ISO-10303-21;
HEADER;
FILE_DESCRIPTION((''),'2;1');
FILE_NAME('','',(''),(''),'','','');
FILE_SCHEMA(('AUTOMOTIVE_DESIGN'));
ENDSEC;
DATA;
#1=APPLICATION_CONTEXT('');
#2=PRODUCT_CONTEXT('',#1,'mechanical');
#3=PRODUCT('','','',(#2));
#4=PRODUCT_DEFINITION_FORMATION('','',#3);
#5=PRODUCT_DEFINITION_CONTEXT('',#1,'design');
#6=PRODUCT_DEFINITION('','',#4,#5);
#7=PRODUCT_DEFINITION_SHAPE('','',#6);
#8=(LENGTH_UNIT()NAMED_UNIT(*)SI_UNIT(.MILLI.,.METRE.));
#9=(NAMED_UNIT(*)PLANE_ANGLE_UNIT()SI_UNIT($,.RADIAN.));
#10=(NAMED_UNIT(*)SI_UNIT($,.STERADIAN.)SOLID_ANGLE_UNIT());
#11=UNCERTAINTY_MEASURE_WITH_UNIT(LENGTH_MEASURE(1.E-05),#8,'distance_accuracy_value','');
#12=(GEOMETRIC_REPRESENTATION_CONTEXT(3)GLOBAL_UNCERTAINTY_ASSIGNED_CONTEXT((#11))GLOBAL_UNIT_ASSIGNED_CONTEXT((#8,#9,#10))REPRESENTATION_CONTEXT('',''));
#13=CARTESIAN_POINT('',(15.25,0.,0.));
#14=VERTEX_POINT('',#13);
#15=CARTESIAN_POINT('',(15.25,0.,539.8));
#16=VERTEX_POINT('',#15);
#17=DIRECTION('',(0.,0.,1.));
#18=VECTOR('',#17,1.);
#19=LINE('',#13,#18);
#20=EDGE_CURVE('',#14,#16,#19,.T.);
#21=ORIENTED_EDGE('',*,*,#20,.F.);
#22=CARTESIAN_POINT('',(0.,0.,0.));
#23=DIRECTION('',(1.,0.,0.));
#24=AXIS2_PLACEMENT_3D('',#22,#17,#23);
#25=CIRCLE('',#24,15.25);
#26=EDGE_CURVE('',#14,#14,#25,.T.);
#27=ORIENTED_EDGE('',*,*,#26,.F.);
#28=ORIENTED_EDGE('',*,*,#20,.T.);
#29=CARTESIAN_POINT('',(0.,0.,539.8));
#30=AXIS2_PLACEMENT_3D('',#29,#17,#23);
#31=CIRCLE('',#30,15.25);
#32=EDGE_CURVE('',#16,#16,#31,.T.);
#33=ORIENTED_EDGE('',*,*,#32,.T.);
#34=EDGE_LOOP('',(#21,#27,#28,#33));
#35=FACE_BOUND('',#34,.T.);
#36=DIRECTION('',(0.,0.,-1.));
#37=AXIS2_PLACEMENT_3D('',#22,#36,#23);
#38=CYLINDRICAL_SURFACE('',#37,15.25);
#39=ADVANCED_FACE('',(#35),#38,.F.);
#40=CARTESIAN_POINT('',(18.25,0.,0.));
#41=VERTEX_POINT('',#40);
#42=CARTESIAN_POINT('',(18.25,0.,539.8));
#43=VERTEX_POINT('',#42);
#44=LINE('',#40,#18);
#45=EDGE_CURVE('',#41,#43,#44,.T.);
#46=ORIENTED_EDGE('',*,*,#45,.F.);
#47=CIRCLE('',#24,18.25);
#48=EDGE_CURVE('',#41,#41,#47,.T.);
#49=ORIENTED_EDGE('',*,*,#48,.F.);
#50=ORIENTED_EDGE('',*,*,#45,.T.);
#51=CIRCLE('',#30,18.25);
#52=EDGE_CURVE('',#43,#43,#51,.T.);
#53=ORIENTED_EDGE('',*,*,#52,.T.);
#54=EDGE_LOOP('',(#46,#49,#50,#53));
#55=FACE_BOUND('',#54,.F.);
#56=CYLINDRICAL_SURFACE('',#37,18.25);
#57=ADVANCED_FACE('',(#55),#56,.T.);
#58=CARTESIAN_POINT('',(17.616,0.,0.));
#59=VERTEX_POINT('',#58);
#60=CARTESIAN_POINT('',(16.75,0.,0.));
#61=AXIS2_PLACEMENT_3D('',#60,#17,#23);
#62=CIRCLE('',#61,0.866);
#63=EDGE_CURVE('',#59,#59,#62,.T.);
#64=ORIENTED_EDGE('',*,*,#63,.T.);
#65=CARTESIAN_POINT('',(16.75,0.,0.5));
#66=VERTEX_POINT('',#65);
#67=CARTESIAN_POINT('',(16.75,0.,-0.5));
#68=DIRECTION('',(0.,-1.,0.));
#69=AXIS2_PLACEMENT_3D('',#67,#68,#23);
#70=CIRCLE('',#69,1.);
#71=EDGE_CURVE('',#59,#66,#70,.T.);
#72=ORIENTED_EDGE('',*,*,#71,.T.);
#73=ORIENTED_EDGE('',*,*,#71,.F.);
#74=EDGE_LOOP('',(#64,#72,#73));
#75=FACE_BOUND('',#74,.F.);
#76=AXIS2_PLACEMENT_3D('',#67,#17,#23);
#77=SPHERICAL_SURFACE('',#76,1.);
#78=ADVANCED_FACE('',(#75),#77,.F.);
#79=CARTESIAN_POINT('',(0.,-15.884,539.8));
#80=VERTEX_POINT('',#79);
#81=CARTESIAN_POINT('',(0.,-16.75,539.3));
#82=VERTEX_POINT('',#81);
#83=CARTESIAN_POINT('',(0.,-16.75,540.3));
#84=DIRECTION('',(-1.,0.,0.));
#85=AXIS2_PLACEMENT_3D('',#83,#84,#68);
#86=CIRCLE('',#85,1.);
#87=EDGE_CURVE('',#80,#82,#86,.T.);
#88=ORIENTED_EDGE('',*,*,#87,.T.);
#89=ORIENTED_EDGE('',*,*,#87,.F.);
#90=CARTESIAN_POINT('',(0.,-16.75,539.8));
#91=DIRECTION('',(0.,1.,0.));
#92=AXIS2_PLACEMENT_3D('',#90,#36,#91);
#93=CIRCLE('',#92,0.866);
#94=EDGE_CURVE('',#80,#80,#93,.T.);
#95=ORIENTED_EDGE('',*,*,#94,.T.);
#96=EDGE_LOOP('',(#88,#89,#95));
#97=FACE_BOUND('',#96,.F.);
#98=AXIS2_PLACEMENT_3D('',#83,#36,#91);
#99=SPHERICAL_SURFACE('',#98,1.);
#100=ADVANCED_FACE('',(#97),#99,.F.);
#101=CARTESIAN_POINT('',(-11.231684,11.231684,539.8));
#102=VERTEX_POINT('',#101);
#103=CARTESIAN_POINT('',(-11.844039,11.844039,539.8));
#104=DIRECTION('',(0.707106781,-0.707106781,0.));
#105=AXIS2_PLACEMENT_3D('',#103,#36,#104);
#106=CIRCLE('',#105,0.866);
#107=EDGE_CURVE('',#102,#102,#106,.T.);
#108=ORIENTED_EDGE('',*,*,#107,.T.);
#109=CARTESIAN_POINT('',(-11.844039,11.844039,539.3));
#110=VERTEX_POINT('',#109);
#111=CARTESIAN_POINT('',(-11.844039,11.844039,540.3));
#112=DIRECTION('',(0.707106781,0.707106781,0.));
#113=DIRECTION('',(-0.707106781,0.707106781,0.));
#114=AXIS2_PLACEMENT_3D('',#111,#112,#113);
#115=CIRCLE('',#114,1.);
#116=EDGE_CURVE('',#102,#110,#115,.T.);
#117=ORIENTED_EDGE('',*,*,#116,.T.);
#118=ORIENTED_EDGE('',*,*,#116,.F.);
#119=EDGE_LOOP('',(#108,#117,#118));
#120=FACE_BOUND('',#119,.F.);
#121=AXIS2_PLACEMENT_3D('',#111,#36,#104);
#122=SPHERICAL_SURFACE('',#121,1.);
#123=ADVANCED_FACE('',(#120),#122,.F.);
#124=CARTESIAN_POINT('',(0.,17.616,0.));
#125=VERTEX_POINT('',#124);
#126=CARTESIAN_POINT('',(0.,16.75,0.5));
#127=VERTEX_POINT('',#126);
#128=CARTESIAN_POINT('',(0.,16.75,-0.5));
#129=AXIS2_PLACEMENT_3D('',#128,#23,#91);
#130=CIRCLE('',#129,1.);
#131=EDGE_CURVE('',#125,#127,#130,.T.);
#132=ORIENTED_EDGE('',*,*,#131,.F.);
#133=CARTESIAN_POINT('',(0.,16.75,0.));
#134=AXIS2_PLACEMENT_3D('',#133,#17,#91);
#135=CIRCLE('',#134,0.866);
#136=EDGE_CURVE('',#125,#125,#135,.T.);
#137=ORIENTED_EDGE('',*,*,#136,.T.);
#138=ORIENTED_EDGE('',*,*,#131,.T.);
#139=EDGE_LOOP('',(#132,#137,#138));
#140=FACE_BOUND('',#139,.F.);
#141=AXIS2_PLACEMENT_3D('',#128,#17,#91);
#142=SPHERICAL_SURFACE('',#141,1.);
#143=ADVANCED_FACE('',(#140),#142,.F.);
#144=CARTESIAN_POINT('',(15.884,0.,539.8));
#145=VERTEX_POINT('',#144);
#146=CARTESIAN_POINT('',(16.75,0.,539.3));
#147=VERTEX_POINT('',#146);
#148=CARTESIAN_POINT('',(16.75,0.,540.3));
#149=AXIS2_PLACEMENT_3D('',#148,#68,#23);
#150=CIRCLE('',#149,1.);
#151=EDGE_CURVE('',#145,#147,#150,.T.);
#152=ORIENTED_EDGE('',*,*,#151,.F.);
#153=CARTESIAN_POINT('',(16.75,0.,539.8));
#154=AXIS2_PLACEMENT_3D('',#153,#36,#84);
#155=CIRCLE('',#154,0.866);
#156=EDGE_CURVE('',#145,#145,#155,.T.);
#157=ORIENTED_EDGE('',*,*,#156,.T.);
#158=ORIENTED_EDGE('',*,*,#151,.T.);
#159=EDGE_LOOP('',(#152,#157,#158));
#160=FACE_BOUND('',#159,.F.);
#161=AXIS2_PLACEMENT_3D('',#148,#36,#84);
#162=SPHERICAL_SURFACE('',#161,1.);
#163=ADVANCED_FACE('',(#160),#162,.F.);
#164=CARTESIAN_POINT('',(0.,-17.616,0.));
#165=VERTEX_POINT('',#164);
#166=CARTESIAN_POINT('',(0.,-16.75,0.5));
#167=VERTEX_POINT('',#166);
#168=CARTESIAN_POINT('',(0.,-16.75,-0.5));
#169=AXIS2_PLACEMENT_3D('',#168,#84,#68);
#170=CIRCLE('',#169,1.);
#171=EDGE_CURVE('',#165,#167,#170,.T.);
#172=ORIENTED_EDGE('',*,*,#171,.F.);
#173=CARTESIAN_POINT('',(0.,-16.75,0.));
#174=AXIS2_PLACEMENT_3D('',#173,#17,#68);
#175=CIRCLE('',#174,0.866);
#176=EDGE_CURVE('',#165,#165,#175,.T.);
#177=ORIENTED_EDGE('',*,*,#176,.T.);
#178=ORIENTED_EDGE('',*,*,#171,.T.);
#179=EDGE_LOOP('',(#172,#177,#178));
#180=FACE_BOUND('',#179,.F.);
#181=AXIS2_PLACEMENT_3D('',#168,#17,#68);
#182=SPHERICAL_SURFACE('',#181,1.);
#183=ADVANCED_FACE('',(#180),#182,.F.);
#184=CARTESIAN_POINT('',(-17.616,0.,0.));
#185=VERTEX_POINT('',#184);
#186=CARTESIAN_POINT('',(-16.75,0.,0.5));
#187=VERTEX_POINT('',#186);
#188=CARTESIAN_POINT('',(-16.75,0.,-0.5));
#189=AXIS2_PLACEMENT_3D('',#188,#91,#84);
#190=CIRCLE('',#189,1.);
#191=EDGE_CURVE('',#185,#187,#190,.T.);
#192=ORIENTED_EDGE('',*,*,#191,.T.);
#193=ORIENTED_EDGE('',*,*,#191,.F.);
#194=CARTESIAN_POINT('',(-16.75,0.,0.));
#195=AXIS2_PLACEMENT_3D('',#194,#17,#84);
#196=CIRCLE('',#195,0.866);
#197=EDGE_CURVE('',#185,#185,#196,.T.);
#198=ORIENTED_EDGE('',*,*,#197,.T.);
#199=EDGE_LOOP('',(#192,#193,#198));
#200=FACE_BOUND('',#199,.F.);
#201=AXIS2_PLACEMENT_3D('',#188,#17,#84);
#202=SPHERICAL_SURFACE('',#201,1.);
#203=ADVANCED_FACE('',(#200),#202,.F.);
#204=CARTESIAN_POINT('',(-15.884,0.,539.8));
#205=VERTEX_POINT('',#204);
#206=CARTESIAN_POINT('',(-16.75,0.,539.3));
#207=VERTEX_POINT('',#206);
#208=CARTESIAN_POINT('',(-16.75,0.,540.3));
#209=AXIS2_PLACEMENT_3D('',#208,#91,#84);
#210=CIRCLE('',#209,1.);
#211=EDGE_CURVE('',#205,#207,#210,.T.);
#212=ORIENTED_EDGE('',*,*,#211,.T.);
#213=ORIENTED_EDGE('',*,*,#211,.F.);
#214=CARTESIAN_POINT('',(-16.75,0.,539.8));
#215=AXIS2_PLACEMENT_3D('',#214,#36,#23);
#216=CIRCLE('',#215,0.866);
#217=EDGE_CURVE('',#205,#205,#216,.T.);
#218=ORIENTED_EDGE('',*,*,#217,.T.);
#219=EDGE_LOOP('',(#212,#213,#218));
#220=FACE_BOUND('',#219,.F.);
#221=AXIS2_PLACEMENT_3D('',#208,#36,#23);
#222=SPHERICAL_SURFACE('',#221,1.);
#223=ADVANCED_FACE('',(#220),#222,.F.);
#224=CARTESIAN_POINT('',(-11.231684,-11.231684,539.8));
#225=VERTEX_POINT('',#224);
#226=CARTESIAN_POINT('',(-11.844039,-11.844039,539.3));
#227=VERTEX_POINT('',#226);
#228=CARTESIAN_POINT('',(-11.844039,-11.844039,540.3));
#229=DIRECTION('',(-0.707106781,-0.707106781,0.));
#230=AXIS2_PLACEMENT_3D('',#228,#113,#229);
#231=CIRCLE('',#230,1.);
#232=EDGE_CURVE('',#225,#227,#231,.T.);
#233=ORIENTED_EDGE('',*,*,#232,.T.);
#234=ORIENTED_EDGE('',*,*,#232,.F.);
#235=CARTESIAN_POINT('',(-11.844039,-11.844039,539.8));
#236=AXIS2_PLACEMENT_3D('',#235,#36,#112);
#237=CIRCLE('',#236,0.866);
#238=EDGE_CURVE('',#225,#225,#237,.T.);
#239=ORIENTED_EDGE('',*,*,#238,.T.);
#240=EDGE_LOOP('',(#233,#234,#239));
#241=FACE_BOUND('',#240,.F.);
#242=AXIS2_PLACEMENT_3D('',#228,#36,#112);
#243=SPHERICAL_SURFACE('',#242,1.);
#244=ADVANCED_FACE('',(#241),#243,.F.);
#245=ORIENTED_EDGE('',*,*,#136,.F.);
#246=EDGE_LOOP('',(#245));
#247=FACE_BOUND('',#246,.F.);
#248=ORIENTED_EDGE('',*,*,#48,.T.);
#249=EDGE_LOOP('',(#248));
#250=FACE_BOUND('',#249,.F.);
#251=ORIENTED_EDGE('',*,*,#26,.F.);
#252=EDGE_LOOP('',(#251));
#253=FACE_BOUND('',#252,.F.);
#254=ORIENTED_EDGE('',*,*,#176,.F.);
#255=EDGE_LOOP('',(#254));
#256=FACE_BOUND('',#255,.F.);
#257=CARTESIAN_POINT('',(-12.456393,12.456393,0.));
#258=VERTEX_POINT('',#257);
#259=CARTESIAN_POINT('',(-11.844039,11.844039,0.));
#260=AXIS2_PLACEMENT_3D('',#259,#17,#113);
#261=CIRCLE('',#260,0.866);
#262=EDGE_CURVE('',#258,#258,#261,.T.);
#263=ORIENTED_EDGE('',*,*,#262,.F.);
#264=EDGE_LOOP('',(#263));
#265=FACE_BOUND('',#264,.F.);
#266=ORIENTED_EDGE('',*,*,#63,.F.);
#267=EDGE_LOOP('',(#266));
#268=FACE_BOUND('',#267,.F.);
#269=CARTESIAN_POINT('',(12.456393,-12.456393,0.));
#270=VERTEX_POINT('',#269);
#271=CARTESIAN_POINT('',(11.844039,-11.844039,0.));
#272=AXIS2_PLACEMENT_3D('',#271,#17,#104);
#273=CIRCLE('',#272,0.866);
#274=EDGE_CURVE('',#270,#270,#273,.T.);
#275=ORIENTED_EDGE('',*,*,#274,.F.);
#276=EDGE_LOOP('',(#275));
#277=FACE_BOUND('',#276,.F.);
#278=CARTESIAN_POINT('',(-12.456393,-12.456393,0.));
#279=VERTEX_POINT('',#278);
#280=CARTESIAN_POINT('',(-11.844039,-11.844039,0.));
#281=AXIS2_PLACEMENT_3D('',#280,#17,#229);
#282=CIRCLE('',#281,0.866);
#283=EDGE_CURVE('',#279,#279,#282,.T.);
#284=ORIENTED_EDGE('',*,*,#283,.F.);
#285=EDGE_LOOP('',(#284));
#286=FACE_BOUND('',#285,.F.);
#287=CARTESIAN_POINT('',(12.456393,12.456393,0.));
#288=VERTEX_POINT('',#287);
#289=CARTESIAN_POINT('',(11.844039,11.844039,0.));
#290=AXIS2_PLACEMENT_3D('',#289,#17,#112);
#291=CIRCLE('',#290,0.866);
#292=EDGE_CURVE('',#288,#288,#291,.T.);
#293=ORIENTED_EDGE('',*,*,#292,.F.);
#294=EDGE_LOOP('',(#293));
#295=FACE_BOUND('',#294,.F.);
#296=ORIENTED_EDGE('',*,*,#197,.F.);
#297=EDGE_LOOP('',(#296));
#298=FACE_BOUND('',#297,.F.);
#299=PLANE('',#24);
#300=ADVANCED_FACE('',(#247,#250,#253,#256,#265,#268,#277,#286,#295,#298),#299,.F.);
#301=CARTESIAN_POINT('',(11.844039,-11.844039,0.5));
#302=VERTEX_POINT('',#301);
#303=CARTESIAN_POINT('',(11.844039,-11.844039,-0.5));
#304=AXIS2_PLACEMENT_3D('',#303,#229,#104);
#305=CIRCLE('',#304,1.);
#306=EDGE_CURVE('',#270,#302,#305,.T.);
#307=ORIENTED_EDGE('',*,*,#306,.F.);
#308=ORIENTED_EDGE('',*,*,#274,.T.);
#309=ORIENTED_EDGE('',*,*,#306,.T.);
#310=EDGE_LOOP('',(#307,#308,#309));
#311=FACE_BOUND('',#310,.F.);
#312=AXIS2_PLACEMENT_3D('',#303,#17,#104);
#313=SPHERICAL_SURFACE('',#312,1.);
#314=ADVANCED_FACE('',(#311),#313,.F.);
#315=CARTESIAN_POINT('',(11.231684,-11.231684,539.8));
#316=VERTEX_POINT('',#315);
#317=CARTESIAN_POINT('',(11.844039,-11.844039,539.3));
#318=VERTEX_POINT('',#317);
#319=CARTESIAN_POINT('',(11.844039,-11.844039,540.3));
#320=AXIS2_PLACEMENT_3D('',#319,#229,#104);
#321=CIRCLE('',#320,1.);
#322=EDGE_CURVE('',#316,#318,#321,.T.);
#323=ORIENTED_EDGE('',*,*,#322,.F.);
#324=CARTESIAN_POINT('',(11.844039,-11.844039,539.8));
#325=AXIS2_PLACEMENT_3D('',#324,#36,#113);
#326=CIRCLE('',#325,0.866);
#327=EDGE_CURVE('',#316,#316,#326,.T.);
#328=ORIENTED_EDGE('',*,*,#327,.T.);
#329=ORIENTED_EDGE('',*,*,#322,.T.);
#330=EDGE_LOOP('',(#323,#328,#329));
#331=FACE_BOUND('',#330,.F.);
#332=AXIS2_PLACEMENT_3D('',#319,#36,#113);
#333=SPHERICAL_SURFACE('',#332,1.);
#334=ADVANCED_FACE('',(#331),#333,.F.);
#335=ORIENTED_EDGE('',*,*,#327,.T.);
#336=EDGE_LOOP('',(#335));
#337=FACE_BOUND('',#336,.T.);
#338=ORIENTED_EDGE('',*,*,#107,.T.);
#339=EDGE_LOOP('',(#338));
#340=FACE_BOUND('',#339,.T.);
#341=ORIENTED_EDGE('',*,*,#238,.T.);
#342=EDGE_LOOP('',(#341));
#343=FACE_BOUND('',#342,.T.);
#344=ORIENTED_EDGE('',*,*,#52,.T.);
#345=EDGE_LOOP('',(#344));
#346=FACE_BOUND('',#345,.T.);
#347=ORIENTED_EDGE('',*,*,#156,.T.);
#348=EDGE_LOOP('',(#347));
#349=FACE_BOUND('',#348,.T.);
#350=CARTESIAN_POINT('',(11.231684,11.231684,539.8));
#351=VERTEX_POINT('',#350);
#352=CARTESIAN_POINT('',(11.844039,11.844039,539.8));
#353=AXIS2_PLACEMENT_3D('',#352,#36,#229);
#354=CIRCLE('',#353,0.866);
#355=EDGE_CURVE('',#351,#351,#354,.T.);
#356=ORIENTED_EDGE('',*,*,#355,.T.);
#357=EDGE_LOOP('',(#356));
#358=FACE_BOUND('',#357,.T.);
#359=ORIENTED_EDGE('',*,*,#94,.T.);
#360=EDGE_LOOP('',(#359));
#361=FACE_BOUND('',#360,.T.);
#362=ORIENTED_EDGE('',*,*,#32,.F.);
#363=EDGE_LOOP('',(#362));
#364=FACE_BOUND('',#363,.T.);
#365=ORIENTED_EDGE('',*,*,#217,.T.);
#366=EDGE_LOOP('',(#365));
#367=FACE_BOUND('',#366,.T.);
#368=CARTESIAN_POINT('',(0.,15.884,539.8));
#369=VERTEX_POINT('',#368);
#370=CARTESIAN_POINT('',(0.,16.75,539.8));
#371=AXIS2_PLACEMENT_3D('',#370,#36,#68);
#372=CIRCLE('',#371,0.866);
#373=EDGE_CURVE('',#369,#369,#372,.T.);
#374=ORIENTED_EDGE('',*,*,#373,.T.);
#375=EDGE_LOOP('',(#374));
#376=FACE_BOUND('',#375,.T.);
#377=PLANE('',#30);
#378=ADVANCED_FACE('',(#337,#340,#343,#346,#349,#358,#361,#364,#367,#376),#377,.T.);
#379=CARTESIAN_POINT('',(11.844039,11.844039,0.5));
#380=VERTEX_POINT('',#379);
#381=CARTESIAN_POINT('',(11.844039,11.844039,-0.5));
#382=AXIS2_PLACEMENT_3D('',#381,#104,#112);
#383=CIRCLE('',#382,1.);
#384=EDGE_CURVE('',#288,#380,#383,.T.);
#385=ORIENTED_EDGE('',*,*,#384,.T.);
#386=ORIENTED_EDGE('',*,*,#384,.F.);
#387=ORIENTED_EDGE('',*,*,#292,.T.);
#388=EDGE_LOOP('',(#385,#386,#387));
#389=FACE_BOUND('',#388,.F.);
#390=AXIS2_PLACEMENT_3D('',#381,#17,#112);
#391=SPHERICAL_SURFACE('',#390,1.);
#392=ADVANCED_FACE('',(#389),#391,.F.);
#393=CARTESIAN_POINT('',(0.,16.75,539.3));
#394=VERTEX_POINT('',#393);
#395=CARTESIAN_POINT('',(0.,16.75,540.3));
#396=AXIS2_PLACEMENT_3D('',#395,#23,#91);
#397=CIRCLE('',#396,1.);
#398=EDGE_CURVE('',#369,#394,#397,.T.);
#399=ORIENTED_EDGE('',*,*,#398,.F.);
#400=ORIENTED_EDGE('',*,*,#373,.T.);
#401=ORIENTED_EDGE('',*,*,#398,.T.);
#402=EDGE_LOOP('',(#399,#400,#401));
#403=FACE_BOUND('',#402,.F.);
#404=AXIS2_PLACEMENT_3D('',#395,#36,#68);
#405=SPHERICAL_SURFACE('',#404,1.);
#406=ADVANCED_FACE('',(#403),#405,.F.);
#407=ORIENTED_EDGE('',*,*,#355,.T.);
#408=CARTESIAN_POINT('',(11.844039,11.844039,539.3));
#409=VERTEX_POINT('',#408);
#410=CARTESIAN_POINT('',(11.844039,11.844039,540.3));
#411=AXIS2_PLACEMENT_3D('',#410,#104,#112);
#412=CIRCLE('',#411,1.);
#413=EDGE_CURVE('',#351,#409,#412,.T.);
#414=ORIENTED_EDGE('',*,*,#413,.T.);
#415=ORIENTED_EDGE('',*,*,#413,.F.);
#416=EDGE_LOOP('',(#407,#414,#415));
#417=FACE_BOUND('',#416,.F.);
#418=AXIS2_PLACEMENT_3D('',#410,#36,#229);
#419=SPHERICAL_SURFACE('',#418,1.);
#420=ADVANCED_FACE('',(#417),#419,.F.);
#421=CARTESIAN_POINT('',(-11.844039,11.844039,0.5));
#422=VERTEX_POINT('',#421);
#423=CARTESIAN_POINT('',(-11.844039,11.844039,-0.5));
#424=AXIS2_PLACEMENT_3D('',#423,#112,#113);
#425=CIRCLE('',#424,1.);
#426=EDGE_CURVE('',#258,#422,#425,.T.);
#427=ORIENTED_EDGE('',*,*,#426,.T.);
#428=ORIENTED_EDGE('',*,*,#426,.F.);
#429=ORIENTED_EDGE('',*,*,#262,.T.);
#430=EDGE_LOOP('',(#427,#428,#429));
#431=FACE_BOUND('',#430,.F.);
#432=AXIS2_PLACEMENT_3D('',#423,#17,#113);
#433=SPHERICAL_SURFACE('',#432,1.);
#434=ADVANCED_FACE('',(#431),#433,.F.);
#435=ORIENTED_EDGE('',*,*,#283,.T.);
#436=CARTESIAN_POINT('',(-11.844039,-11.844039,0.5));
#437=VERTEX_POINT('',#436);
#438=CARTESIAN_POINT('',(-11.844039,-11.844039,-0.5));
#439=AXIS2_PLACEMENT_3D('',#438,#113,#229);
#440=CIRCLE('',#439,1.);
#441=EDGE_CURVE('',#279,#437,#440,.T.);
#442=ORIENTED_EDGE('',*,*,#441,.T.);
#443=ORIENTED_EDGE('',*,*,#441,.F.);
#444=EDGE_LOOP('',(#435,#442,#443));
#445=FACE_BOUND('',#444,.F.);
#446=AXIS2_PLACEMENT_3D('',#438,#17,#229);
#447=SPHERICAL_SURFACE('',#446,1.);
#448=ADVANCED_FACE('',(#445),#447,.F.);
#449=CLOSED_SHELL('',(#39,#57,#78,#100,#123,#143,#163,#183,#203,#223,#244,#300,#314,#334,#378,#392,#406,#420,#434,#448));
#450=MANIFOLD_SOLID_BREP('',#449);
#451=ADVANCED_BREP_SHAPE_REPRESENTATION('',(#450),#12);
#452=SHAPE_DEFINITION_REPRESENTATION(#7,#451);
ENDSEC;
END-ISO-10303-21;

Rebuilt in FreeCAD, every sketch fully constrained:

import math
import FreeCAD as App
import Part
import Sketcher

V = App.Vector

doc = App.newDocument("Part")
body = doc.addObject("PartDesign::Body", "Body")

sketch1 = doc.addObject("Sketcher::SketchObject", "Sketch")
body.addObject(sketch1)
sketch1.AttachmentSupport = (doc.XY_Plane, [""])
sketch1.MapMode = "FlatFace"
sketch1.addGeometry(Part.Circle(V(0, 0, 0), V(0, 0, 1), 18), False)
sketch1.addGeometry(Part.Circle(V(0, 0, 0), V(0, 0, 1), 15), False)
sketch1.addConstraint(Sketcher.Constraint("Coincident", 0, 3, -1, 1))
sketch1.addConstraint(Sketcher.Constraint("Coincident", 1, 3, -1, 1))
sketch1.addConstraint(Sketcher.Constraint("Diameter", 0, 36.5))
sketch1.addConstraint(Sketcher.Constraint("Diameter", 1, 30.5))
pad1 = doc.addObject("PartDesign::Pad", "Pad")
body.addObject(pad1)
pad1.Profile = sketch1
pad1.Length = 539.8

sketch2 = doc.addObject("Sketcher::SketchObject", "Sketch001")
body.addObject(sketch2)
sketch2.AttachmentSupport = (doc.XZ_Plane, [""])
sketch2.MapMode = "FlatFace"
sketch2.addGeometry(Part.LineSegment(V(-16.8, 539.3, 0), V(-16.8, 539.8, 0)), False)
sketch2.addGeometry(Part.LineSegment(V(-16.8, 539.8, 0), V(-15.9, 539.8, 0)), False)
sketch2.addGeometry(Part.ArcOfCircle(Part.Circle(V(-16.8, 540.3, 0), V(0, 0, 1), 1), math.radians(-90), math.radians(-30)), False)
sketch2.addGeometry(Part.LineSegment(V(-16.8, 540.3, 0), V(-16.8, 539.3, 0)), True)
sketch2.addConstraint(Sketcher.Constraint("Coincident", 0, 2, 1, 1))
sketch2.addConstraint(Sketcher.Constraint("Coincident", 1, 2, 2, 2))
sketch2.addConstraint(Sketcher.Constraint("Coincident", 2, 1, 0, 1))
sketch2.addConstraint(Sketcher.Constraint("Vertical", 0))
sketch2.addConstraint(Sketcher.Constraint("Horizontal", 1))
sketch2.addConstraint(Sketcher.Constraint("Vertical", 3))
sketch2.addConstraint(Sketcher.Constraint("Coincident", 3, 1, 2, 3))
sketch2.addConstraint(Sketcher.Constraint("Coincident", 3, 2, 2, 1))
sketch2.addConstraint(Sketcher.Constraint("Radius", 2, 1.0))
sketch2.addConstraint(Sketcher.Constraint("DistanceY", 0, 1, 0, 2, 0.5))
sketch2.addConstraint(Sketcher.Constraint("DistanceY", -1, 1, 2, 3, 540.3))
sketch2.addConstraint(Sketcher.Constraint("DistanceX", 2, 3, -1, 1, 16.75))
groove = doc.addObject("PartDesign::Groove", "Groove")
body.addObject(groove)
groove.Profile = sketch2
groove.ReferenceAxis = (sketch2, ["Axis0"])
groove.Angle = 360
doc.recompute()

polarpattern = doc.addObject("PartDesign::PolarPattern", "PolarPattern")
body.addObject(polarpattern)
polarpattern.Originals = [groove]
polarpattern.Axis = (doc.Z_Axis, [""])
polarpattern.Angle = 360
polarpattern.Occurrences = 8
body.Tip = polarpattern

sketch3 = doc.addObject("Sketcher::SketchObject", "Sketch002")
body.addObject(sketch3)
sketch3.AttachmentSupport = (doc.XZ_Plane, [""])
sketch3.MapMode = "FlatFace"
sketch3.addGeometry(Part.LineSegment(V(-16.8, 0, 0), V(-17.6, 0, 0)), False)
sketch3.addGeometry(Part.ArcOfCircle(Part.Circle(V(-16.8, -0.5, 0), V(0, 0, 1), 1), math.radians(90), math.radians(150)), False)
sketch3.addGeometry(Part.LineSegment(V(-16.8, 0.5, 0), V(-16.8, 0, 0)), False)
sketch3.addGeometry(Part.LineSegment(V(-16.8, -0.5, 0), V(-16.8, 0.5, 0)), True)
sketch3.addConstraint(Sketcher.Constraint("Coincident", 0, 2, 1, 2))
sketch3.addConstraint(Sketcher.Constraint("Coincident", 1, 1, 2, 1))
sketch3.addConstraint(Sketcher.Constraint("Coincident", 2, 2, 0, 1))
sketch3.addConstraint(Sketcher.Constraint("Horizontal", 0))
sketch3.addConstraint(Sketcher.Constraint("Vertical", 2))
sketch3.addConstraint(Sketcher.Constraint("Vertical", 3))
sketch3.addConstraint(Sketcher.Constraint("Coincident", 3, 1, 1, 3))
sketch3.addConstraint(Sketcher.Constraint("Coincident", 3, 2, 1, 1))
sketch3.addConstraint(Sketcher.Constraint("PointOnObject", 0, 2, -1))
sketch3.addConstraint(Sketcher.Constraint("Radius", 1, 1.0))
sketch3.addConstraint(Sketcher.Constraint("DistanceY", 2, 2, 2, 1, 0.5))
sketch3.addConstraint(Sketcher.Constraint("DistanceX", 1, 3, -1, 1, 16.75))
groove2 = doc.addObject("PartDesign::Groove", "Groove001")
body.addObject(groove2)
groove2.Profile = sketch3
groove2.ReferenceAxis = (sketch3, ["Axis0"])
groove2.Angle = 360
doc.recompute()

polarpattern2 = doc.addObject("PartDesign::PolarPattern", "PolarPattern001")
body.addObject(polarpattern2)
polarpattern2.Originals = [groove2]
polarpattern2.Axis = (doc.Z_Axis, [""])
polarpattern2.Angle = 360
polarpattern2.Occurrences = 8
body.Tip = polarpattern2

doc.recompute()
